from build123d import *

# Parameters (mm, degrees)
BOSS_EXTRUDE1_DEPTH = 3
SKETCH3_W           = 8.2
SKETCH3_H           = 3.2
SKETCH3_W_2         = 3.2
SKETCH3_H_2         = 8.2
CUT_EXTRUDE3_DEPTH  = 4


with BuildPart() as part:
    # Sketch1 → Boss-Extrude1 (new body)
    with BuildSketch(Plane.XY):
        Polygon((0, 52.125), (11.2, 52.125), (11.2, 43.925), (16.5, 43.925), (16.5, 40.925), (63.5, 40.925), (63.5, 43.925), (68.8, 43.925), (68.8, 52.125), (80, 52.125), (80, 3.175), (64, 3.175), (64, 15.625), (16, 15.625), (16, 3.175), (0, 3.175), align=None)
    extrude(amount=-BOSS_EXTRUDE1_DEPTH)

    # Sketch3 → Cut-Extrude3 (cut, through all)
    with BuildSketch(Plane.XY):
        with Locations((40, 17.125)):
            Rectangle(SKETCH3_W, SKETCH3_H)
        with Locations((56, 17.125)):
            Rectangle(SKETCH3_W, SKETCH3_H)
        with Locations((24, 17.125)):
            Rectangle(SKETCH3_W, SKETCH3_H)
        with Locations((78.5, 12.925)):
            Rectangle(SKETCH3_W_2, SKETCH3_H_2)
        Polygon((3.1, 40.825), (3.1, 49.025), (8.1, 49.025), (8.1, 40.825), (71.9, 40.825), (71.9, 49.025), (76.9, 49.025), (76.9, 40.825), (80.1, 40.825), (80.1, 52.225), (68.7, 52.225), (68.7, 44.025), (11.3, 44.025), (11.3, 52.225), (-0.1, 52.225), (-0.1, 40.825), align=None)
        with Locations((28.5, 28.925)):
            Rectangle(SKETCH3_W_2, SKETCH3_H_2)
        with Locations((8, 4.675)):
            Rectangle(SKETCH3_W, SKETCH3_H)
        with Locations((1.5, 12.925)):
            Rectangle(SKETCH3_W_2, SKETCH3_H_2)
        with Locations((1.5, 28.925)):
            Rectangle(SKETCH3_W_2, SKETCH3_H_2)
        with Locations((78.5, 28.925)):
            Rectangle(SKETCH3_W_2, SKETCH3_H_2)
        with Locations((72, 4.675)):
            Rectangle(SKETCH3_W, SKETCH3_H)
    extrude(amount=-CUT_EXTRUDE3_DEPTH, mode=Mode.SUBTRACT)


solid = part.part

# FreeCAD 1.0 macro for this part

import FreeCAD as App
import Part
import Sketcher

V = App.Vector
Q = App.Units.Quantity

doc = App.newDocument("Part")
params = doc.addObject("Spreadsheet::Sheet", "Params")
for row, (alias, value) in enumerate([
    ("sketch1_width", "16 mm"),
    ("sketch1_width2", "48 mm"),
    ("sketch1_width3", "47 mm"),
    ("sketch1_height", "3 mm"),
    ("sketch1_width4", "11.2 mm"),
    ("pad1_length", "3 mm"),
    ("sketch2_width", "5 mm"),
    ("sketch2_width2", "8.2 mm"),
    ("sketch2_width3", "3.2 mm"),
    ("sketch2_width4", "63.8 mm"),
    ("sketch2_width5", "11.4 mm"),
], start=1):
    params.set(f"A{row}", alias)
    params.set(f"B{row}", "=" + value)
    params.setAlias(f"B{row}", alias)

body = doc.addObject("PartDesign::Body", "Body")

# Sketch on XY plane
sketch1 = body.newObject("Sketcher::SketchObject", "Sketch")
sketch1.AttachmentSupport = (doc.getObject("XY_Plane"), [""])
sketch1.MapMode = "FlatFace"
sketch1.addGeometry(Part.LineSegment(V(11.2, 52.1, 0), V(0, 52.1, 0)), False)
sketch1.addGeometry(Part.LineSegment(V(0, 52.1, 0), V(0, 3.2, 0)), False)
sketch1.addGeometry(Part.LineSegment(V(0, 3.2, 0), V(16, 3.2, 0)), False)
sketch1.addGeometry(Part.LineSegment(V(16, 3.2, 0), V(16, 15.6, 0)), False)
sketch1.addGeometry(Part.LineSegment(V(16, 15.6, 0), V(64, 15.6, 0)), False)
sketch1.addGeometry(Part.LineSegment(V(64, 15.6, 0), V(64, 3.2, 0)), False)
sketch1.addGeometry(Part.LineSegment(V(64, 3.2, 0), V(80, 3.2, 0)), False)
sketch1.addGeometry(Part.LineSegment(V(80, 3.2, 0), V(80, 52.1, 0)), False)
sketch1.addGeometry(Part.LineSegment(V(80, 52.1, 0), V(68.8, 52.1, 0)), False)
sketch1.addGeometry(Part.LineSegment(V(68.8, 52.1, 0), V(68.8, 43.9, 0)), False)
sketch1.addGeometry(Part.LineSegment(V(68.8, 43.9, 0), V(63.5, 43.9, 0)), False)
sketch1.addGeometry(Part.LineSegment(V(63.5, 43.9, 0), V(63.5, 40.9, 0)), False)
sketch1.addGeometry(Part.LineSegment(V(63.5, 40.9, 0), V(16.5, 40.9, 0)), False)
sketch1.addGeometry(Part.LineSegment(V(16.5, 40.9, 0), V(16.5, 43.9, 0)), False)
sketch1.addGeometry(Part.LineSegment(V(16.5, 43.9, 0), V(11.2, 43.9, 0)), False)
sketch1.addGeometry(Part.LineSegment(V(11.2, 43.9, 0), V(11.2, 52.1, 0)), False)
sketch1.addConstraint(Sketcher.Constraint("Coincident", 0, 2, 1, 1))
sketch1.addConstraint(Sketcher.Constraint("Coincident", 1, 2, 2, 1))
sketch1.addConstraint(Sketcher.Constraint("Coincident", 2, 2, 3, 1))
sketch1.addConstraint(Sketcher.Constraint("Coincident", 3, 2, 4, 1))
sketch1.addConstraint(Sketcher.Constraint("Coincident", 4, 2, 5, 1))
sketch1.addConstraint(Sketcher.Constraint("Coincident", 5, 2, 6, 1))
sketch1.addConstraint(Sketcher.Constraint("Coincident", 6, 2, 7, 1))
sketch1.addConstraint(Sketcher.Constraint("Coincident", 7, 2, 8, 1))
sketch1.addConstraint(Sketcher.Constraint("Coincident", 8, 2, 9, 1))
sketch1.addConstraint(Sketcher.Constraint("Coincident", 9, 2, 10, 1))
sketch1.addConstraint(Sketcher.Constraint("Coincident", 10, 2, 11, 1))
sketch1.addConstraint(Sketcher.Constraint("Coincident", 11, 2, 12, 1))
sketch1.addConstraint(Sketcher.Constraint("Coincident", 12, 2, 13, 1))
sketch1.addConstraint(Sketcher.Constraint("Coincident", 13, 2, 14, 1))
sketch1.addConstraint(Sketcher.Constraint("Coincident", 14, 2, 15, 1))
sketch1.addConstraint(Sketcher.Constraint("Coincident", 15, 2, 0, 1))
sketch1.addConstraint(Sketcher.Constraint("Horizontal", 0))
sketch1.addConstraint(Sketcher.Constraint("Vertical", 1))
sketch1.addConstraint(Sketcher.Constraint("Horizontal", 2))
sketch1.addConstraint(Sketcher.Constraint("Vertical", 3))
sketch1.addConstraint(Sketcher.Constraint("Horizontal", 4))
sketch1.addConstraint(Sketcher.Constraint("Vertical", 5))
sketch1.addConstraint(Sketcher.Constraint("Horizontal", 6))
sketch1.addConstraint(Sketcher.Constraint("Vertical", 7))
sketch1.addConstraint(Sketcher.Constraint("Horizontal", 8))
sketch1.addConstraint(Sketcher.Constraint("Vertical", 9))
sketch1.addConstraint(Sketcher.Constraint("Horizontal", 10))
sketch1.addConstraint(Sketcher.Constraint("Vertical", 11))
sketch1.addConstraint(Sketcher.Constraint("Horizontal", 12))
sketch1.addConstraint(Sketcher.Constraint("Vertical", 13))
sketch1.addConstraint(Sketcher.Constraint("Horizontal", 14))
sketch1.addConstraint(Sketcher.Constraint("Vertical", 15))
sketch1.addConstraint(Sketcher.Constraint("PointOnObject", 0, 2, -2))
sketch1.addConstraint(Sketcher.Constraint("Horizontal", 2, 2, 5, 2))
sketch1.addConstraint(Sketcher.Constraint("Horizontal", 0, 2, 7, 2))
sketch1.addConstraint(Sketcher.Constraint("Horizontal", 10, 2, 13, 2))
sketch1.addConstraint(Sketcher.Constraint("Equal", 2, 6))
sketch1.addConstraint(Sketcher.Constraint("Equal", 0, 8))
sketch1.addConstraint(Sketcher.Constraint("Equal", 10, 14))
sketch1.addConstraint(Sketcher.Constraint("DistanceX", 2, 1, 2, 2, Q("16 mm")))
sketch1.addConstraint(Sketcher.Constraint("DistanceX", 4, 1, 4, 2, Q("48 mm")))
sketch1.addConstraint(Sketcher.Constraint("DistanceX", 12, 2, 12, 1, Q("47 mm")))
sketch1.addConstraint(Sketcher.Constraint("DistanceY", 11, 2, 11, 1, Q("3 mm")))
sketch1.addConstraint(Sketcher.Constraint("DistanceX", 0, 2, 0, 1, Q("11.2 mm")))
sketch1.addConstraint(Sketcher.Constraint("DistanceY", 9, 2, 9, 1, Q("8.2 mm")))
sketch1.addConstraint(Sketcher.Constraint("DistanceY", 1, 2, 1, 1, Q("48.95 mm")))
sketch1.addConstraint(Sketcher.Constraint("DistanceY", 3, 1, 3, 2, Q("12.45 mm")))
sketch1.addConstraint(Sketcher.Constraint("DistanceY", -1, 1, 0, 2, Q("52.125 mm")))
sketch1.setExpression("Constraints[39]", "Params.sketch1_width")
sketch1.setExpression("Constraints[40]", "Params.sketch1_width2")
sketch1.setExpression("Constraints[41]", "Params.sketch1_width3")
sketch1.setExpression("Constraints[42]", "Params.sketch1_height")
sketch1.setExpression("Constraints[43]", "Params.sketch1_width4")
pad1 = body.newObject("PartDesign::Pad", "Pad")
pad1.Profile = sketch1
pad1.setExpression("Length", "Params.pad1_length")
pad1.Reversed = True

# Sketch on XY plane
sketch2 = body.newObject("Sketcher::SketchObject", "Sketch001")
sketch2.AttachmentSupport = (doc.getObject("XY_Plane"), [""])
sketch2.MapMode = "FlatFace"
sketch2.addGeometry(Part.LineSegment(V(35.9, 18.7, 0), V(35.9, 15.5, 0)), False)
sketch2.addGeometry(Part.LineSegment(V(35.9, 15.5, 0), V(44.1, 15.5, 0)), False)
sketch2.addGeometry(Part.LineSegment(V(44.1, 15.5, 0), V(44.1, 18.7, 0)), False)
sketch2.addGeometry(Part.LineSegment(V(44.1, 18.7, 0), V(35.9, 18.7, 0)), False)
sketch2.addGeometry(Part.LineSegment(V(51.9, 18.7, 0), V(51.9, 15.5, 0)), False)
sketch2.addGeometry(Part.LineSegment(V(51.9, 15.5, 0), V(60.1, 15.5, 0)), False)
sketch2.addGeometry(Part.LineSegment(V(60.1, 15.5, 0), V(60.1, 18.7, 0)), False)
sketch2.addGeometry(Part.LineSegment(V(60.1, 18.7, 0), V(51.9, 18.7, 0)), False)
sketch2.addGeometry(Part.LineSegment(V(19.9, 18.7, 0), V(19.9, 15.5, 0)), False)
sketch2.addGeometry(Part.LineSegment(V(19.9, 15.5, 0), V(28.1, 15.5, 0)), False)
sketch2.addGeometry(Part.LineSegment(V(28.1, 15.5, 0), V(28.1, 18.7, 0)), False)
sketch2.addGeometry(Part.LineSegment(V(28.1, 18.7, 0), V(19.9, 18.7, 0)), False)
sketch2.addGeometry(Part.LineSegment(V(76.9, 17, 0), V(76.9, 8.8, 0)), False)
sketch2.addGeometry(Part.LineSegment(V(76.9, 8.8, 0), V(80.1, 8.8, 0)), False)
sketch2.addGeometry(Part.LineSegment(V(80.1, 8.8, 0), V(80.1, 17, 0)), False)
sketch2.addGeometry(Part.LineSegment(V(80.1, 17, 0), V(76.9, 17, 0)), False)
sketch2.addGeometry(Part.LineSegment(V(3.1, 40.8, 0), V(3.1, 49, 0)), False)
sketch2.addGeometry(Part.LineSegment(V(3.1, 49, 0), V(8.1, 49, 0)), False)
sketch2.addGeometry(Part.LineSegment(V(8.1, 49, 0), V(8.1, 40.8, 0)), False)
sketch2.addGeometry(Part.LineSegment(V(8.1, 40.8, 0), V(71.9, 40.8, 0)), False)
sketch2.addGeometry(Part.LineSegment(V(71.9, 40.8, 0), V(71.9, 49, 0)), False)
sketch2.addGeometry(Part.LineSegment(V(71.9, 49, 0), V(76.9, 49, 0)), False)
sketch2.addGeometry(Part.LineSegment(V(76.9, 49, 0), V(76.9, 40.8, 0)), False)
sketch2.addGeometry(Part.LineSegment(V(76.9, 40.8, 0), V(80.1, 40.8, 0)), False)
sketch2.addGeometry(Part.LineSegment(V(80.1, 40.8, 0), V(80.1, 52.2, 0)), False)
sketch2.addGeometry(Part.LineSegment(V(80.1, 52.2, 0), V(68.7, 52.2, 0)), False)
sketch2.addGeometry(Part.LineSegment(V(68.7, 52.2, 0), V(68.7, 44, 0)), False)
sketch2.addGeometry(Part.LineSegment(V(68.7, 44, 0), V(11.3, 44, 0)), False)
sketch2.addGeometry(Part.LineSegment(V(11.3, 44, 0), V(11.3, 52.2, 0)), False)
sketch2.addGeometry(Part.LineSegment(V(11.3, 52.2, 0), V(-0.1, 52.2, 0)), False)
sketch2.addGeometry(Part.LineSegment(V(-0.1, 52.2, 0), V(-0.1, 40.8, 0)), False)
sketch2.addGeometry(Part.LineSegment(V(-0.1, 40.8, 0), V(3.1, 40.8, 0)), False)
sketch2.addGeometry(Part.LineSegment(V(26.9, 33, 0), V(26.9, 24.8, 0)), False)
sketch2.addGeometry(Part.LineSegment(V(26.9, 24.8, 0), V(30.1, 24.8, 0)), False)
sketch2.addGeometry(Part.LineSegment(V(30.1, 24.8, 0), V(30.1, 33, 0)), False)
sketch2.addGeometry(Part.LineSegment(V(30.1, 33, 0), V(26.9, 33, 0)), False)
sketch2.addGeometry(Part.LineSegment(V(3.9, 6.3, 0), V(3.9, 3.1, 0)), False)
sketch2.addGeometry(Part.LineSegment(V(3.9, 3.1, 0), V(12.1, 3.1, 0)), False)
sketch2.addGeometry(Part.LineSegment(V(12.1, 3.1, 0), V(12.1, 6.3, 0)), False)
sketch2.addGeometry(Part.LineSegment(V(12.1, 6.3, 0), V(3.9, 6.3, 0)), False)
sketch2.addGeometry(Part.LineSegment(V(-0.1, 17, 0), V(-0.1, 8.8, 0)), False)
sketch2.addGeometry(Part.LineSegment(V(-0.1, 8.8, 0), V(3.1, 8.8, 0)), False)
sketch2.addGeometry(Part.LineSegment(V(3.1, 8.8, 0), V(3.1, 17, 0)), False)
sketch2.addGeometry(Part.LineSegment(V(3.1, 17, 0), V(-0.1, 17, 0)), False)
sketch2.addGeometry(Part.LineSegment(V(-0.1, 33, 0), V(-0.1, 24.8, 0)), False)
sketch2.addGeometry(Part.LineSegment(V(-0.1, 24.8, 0), V(3.1, 24.8, 0)), False)
sketch2.addGeometry(Part.LineSegment(V(3.1, 24.8, 0), V(3.1, 33, 0)), False)
sketch2.addGeometry(Part.LineSegment(V(3.1, 33, 0), V(-0.1, 33, 0)), False)
sketch2.addGeometry(Part.LineSegment(V(76.9, 33, 0), V(76.9, 24.8, 0)), False)
sketch2.addGeometry(Part.LineSegment(V(76.9, 24.8, 0), V(80.1, 24.8, 0)), False)
sketch2.addGeometry(Part.LineSegment(V(80.1, 24.8, 0), V(80.1, 33, 0)), False)
sketch2.addGeometry(Part.LineSegment(V(80.1, 33, 0), V(76.9, 33, 0)), False)
sketch2.addGeometry(Part.LineSegment(V(67.9, 6.3, 0), V(67.9, 3.1, 0)), False)
sketch2.addGeometry(Part.LineSegment(V(67.9, 3.1, 0), V(76.1, 3.1, 0)), False)
sketch2.addGeometry(Part.LineSegment(V(76.1, 3.1, 0), V(76.1, 6.3, 0)), False)
sketch2.addGeometry(Part.LineSegment(V(76.1, 6.3, 0), V(67.9, 6.3, 0)), False)
sketch2.addConstraint(Sketcher.Constraint("Coincident", 0, 2, 1, 1))
sketch2.addConstraint(Sketcher.Constraint("Coincident", 1, 2, 2, 1))
sketch2.addConstraint(Sketcher.Constraint("Coincident", 2, 2, 3, 1))
sketch2.addConstraint(Sketcher.Constraint("Coincident", 3, 2, 0, 1))
sketch2.addConstraint(Sketcher.Constraint("Coincident", 4, 2, 5, 1))
sketch2.addConstraint(Sketcher.Constraint("Coincident", 5, 2, 6, 1))
sketch2.addConstraint(Sketcher.Constraint("Coincident", 6, 2, 7, 1))
sketch2.addConstraint(Sketcher.Constraint("Coincident", 7, 2, 4, 1))
sketch2.addConstraint(Sketcher.Constraint("Coincident", 8, 2, 9, 1))
sketch2.addConstraint(Sketcher.Constraint("Coincident", 9, 2, 10, 1))
sketch2.addConstraint(Sketcher.Constraint("Coincident", 10, 2, 11, 1))
sketch2.addConstraint(Sketcher.Constraint("Coincident", 11, 2, 8, 1))
sketch2.addConstraint(Sketcher.Constraint("Coincident", 12, 2, 13, 1))
sketch2.addConstraint(Sketcher.Constraint("Coincident", 13, 2, 14, 1))
sketch2.addConstraint(Sketcher.Constraint("Coincident", 14, 2, 15, 1))
sketch2.addConstraint(Sketcher.Constraint("Coincident", 15, 2, 12, 1))
sketch2.addConstraint(Sketcher.Constraint("Coincident", 16, 2, 17, 1))
sketch2.addConstraint(Sketcher.Constraint("Coincident", 17, 2, 18, 1))
sketch2.addConstraint(Sketcher.Constraint("Coincident", 18, 2, 19, 1))
sketch2.addConstraint(Sketcher.Constraint("Coincident", 19, 2, 20, 1))
sketch2.addConstraint(Sketcher.Constraint("Coincident", 20, 2, 21, 1))
sketch2.addConstraint(Sketcher.Constraint("Coincident", 21, 2, 22, 1))
sketch2.addConstraint(Sketcher.Constraint("Coincident", 22, 2, 23, 1))
sketch2.addConstraint(Sketcher.Constraint("Coincident", 23, 2, 24, 1))
sketch2.addConstraint(Sketcher.Constraint("Coincident", 24, 2, 25, 1))
sketch2.addConstraint(Sketcher.Constraint("Coincident", 25, 2, 26, 1))
sketch2.addConstraint(Sketcher.Constraint("Coincident", 26, 2, 27, 1))
sketch2.addConstraint(Sketcher.Constraint("Coincident", 27, 2, 28, 1))
sketch2.addConstraint(Sketcher.Constraint("Coincident", 28, 2, 29, 1))
sketch2.addConstraint(Sketcher.Constraint("Coincident", 29, 2, 30, 1))
sketch2.addConstraint(Sketcher.Constraint("Coincident", 30, 2, 31, 1))
sketch2.addConstraint(Sketcher.Constraint("Coincident", 31, 2, 16, 1))
sketch2.addConstraint(Sketcher.Constraint("Coincident", 32, 2, 33, 1))
sketch2.addConstraint(Sketcher.Constraint("Coincident", 33, 2, 34, 1))
sketch2.addConstraint(Sketcher.Constraint("Coincident", 34, 2, 35, 1))
sketch2.addConstraint(Sketcher.Constraint("Coincident", 35, 2, 32, 1))
sketch2.addConstraint(Sketcher.Constraint("Coincident", 36, 2, 37, 1))
sketch2.addConstraint(Sketcher.Constraint("Coincident", 37, 2, 38, 1))
sketch2.addConstraint(Sketcher.Constraint("Coincident", 38, 2, 39, 1))
sketch2.addConstraint(Sketcher.Constraint("Coincident", 39, 2, 36, 1))
sketch2.addConstraint(Sketcher.Constraint("Coincident", 40, 2, 41, 1))
sketch2.addConstraint(Sketcher.Constraint("Coincident", 41, 2, 42, 1))
sketch2.addConstraint(Sketcher.Constraint("Coincident", 42, 2, 43, 1))
sketch2.addConstraint(Sketcher.Constraint("Coincident", 43, 2, 40, 1))
sketch2.addConstraint(Sketcher.Constraint("Coincident", 44, 2, 45, 1))
sketch2.addConstraint(Sketcher.Constraint("Coincident", 45, 2, 46, 1))
sketch2.addConstraint(Sketcher.Constraint("Coincident", 46, 2, 47, 1))
sketch2.addConstraint(Sketcher.Constraint("Coincident", 47, 2, 44, 1))
sketch2.addConstraint(Sketcher.Constraint("Coincident", 48, 2, 49, 1))
sketch2.addConstraint(Sketcher.Constraint("Coincident", 49, 2, 50, 1))
sketch2.addConstraint(Sketcher.Constraint("Coincident", 50, 2, 51, 1))
sketch2.addConstraint(Sketcher.Constraint("Coincident", 51, 2, 48, 1))
sketch2.addConstraint(Sketcher.Constraint("Coincident", 52, 2, 53, 1))
sketch2.addConstraint(Sketcher.Constraint("Coincident", 53, 2, 54, 1))
sketch2.addConstraint(Sketcher.Constraint("Coincident", 54, 2, 55, 1))
sketch2.addConstraint(Sketcher.Constraint("Coincident", 55, 2, 52, 1))
sketch2.addConstraint(Sketcher.Constraint("Vertical", 0))
sketch2.addConstraint(Sketcher.Constraint("Horizontal", 1))
sketch2.addConstraint(Sketcher.Constraint("Vertical", 2))
sketch2.addConstraint(Sketcher.Constraint("Horizontal", 3))
sketch2.addConstraint(Sketcher.Constraint("Vertical", 4))
sketch2.addConstraint(Sketcher.Constraint("Horizontal", 5))
sketch2.addConstraint(Sketcher.Constraint("Vertical", 6))
sketch2.addConstraint(Sketcher.Constraint("Horizontal", 7))
sketch2.addConstraint(Sketcher.Constraint("Vertical", 8))
sketch2.addConstraint(Sketcher.Constraint("Horizontal", 9))
sketch2.addConstraint(Sketcher.Constraint("Vertical", 10))
sketch2.addConstraint(Sketcher.Constraint("Horizontal", 11))
sketch2.addConstraint(Sketcher.Constraint("Vertical", 12))
sketch2.addConstraint(Sketcher.Constraint("Horizontal", 13))
sketch2.addConstraint(Sketcher.Constraint("Vertical", 14))
sketch2.addConstraint(Sketcher.Constraint("Horizontal", 15))
sketch2.addConstraint(Sketcher.Constraint("Vertical", 16))
sketch2.addConstraint(Sketcher.Constraint("Horizontal", 17))
sketch2.addConstraint(Sketcher.Constraint("Vertical", 18))
sketch2.addConstraint(Sketcher.Constraint("Horizontal", 19))
sketch2.addConstraint(Sketcher.Constraint("Vertical", 20))
sketch2.addConstraint(Sketcher.Constraint("Horizontal", 21))
sketch2.addConstraint(Sketcher.Constraint("Vertical", 22))
sketch2.addConstraint(Sketcher.Constraint("Horizontal", 23))
sketch2.addConstraint(Sketcher.Constraint("Vertical", 24))
sketch2.addConstraint(Sketcher.Constraint("Horizontal", 25))
sketch2.addConstraint(Sketcher.Constraint("Vertical", 26))
sketch2.addConstraint(Sketcher.Constraint("Horizontal", 27))
sketch2.addConstraint(Sketcher.Constraint("Vertical", 28))
sketch2.addConstraint(Sketcher.Constraint("Horizontal", 29))
sketch2.addConstraint(Sketcher.Constraint("Vertical", 30))
sketch2.addConstraint(Sketcher.Constraint("Horizontal", 31))
sketch2.addConstraint(Sketcher.Constraint("Vertical", 32))
sketch2.addConstraint(Sketcher.Constraint("Horizontal", 33))
sketch2.addConstraint(Sketcher.Constraint("Vertical", 34))
sketch2.addConstraint(Sketcher.Constraint("Horizontal", 35))
sketch2.addConstraint(Sketcher.Constraint("Vertical", 36))
sketch2.addConstraint(Sketcher.Constraint("Horizontal", 37))
sketch2.addConstraint(Sketcher.Constraint("Vertical", 38))
sketch2.addConstraint(Sketcher.Constraint("Horizontal", 39))
sketch2.addConstraint(Sketcher.Constraint("Vertical", 40))
sketch2.addConstraint(Sketcher.Constraint("Horizontal", 41))
sketch2.addConstraint(Sketcher.Constraint("Vertical", 42))
sketch2.addConstraint(Sketcher.Constraint("Horizontal", 43))
sketch2.addConstraint(Sketcher.Constraint("Vertical", 44))
sketch2.addConstraint(Sketcher.Constraint("Horizontal", 45))
sketch2.addConstraint(Sketcher.Constraint("Vertical", 46))
sketch2.addConstraint(Sketcher.Constraint("Horizontal", 47))
sketch2.addConstraint(Sketcher.Constraint("Vertical", 48))
sketch2.addConstraint(Sketcher.Constraint("Horizontal", 49))
sketch2.addConstraint(Sketcher.Constraint("Vertical", 50))
sketch2.addConstraint(Sketcher.Constraint("Horizontal", 51))
sketch2.addConstraint(Sketcher.Constraint("Vertical", 52))
sketch2.addConstraint(Sketcher.Constraint("Horizontal", 53))
sketch2.addConstraint(Sketcher.Constraint("Vertical", 54))
sketch2.addConstraint(Sketcher.Constraint("Horizontal", 55))
sketch2.addConstraint(Sketcher.Constraint("Horizontal", 1, 2, 4, 2))
sketch2.addConstraint(Sketcher.Constraint("Horizontal", 3, 2, 6, 2))
sketch2.addConstraint(Sketcher.Constraint("Horizontal", 5, 2, 8, 2))
sketch2.addConstraint(Sketcher.Constraint("Horizontal", 7, 2, 10, 2))
sketch2.addConstraint(Sketcher.Constraint("Horizontal", 17, 2, 20, 2))
sketch2.addConstraint(Sketcher.Constraint("Horizontal", 19, 2, 22, 2))
sketch2.addConstraint(Sketcher.Constraint("Horizontal", 25, 2, 28, 2))
sketch2.addConstraint(Sketcher.Constraint("Horizontal", 23, 2, 30, 2))
sketch2.addConstraint(Sketcher.Constraint("Horizontal", 13, 2, 40, 2))
sketch2.addConstraint(Sketcher.Constraint("Horizontal", 15, 2, 42, 2))
sketch2.addConstraint(Sketcher.Constraint("Horizontal", 33, 2, 44, 2))
sketch2.addConstraint(Sketcher.Constraint("Horizontal", 35, 2, 46, 2))
sketch2.addConstraint(Sketcher.Constraint("Horizontal", 45, 2, 48, 2))
sketch2.addConstraint(Sketcher.Constraint("Horizontal", 47, 2, 50, 2))
sketch2.addConstraint(Sketcher.Constraint("Horizontal", 37, 2, 52, 2))
sketch2.addConstraint(Sketcher.Constraint("Horizontal", 39, 2, 54, 2))
sketch2.addConstraint(Sketcher.Constraint("Vertical", 15, 2, 21, 2))
sketch2.addConstraint(Sketcher.Constraint("Vertical", 14, 2, 23, 2))
sketch2.addConstraint(Sketcher.Constraint("Vertical", 30, 2, 40, 2))
sketch2.addConstraint(Sketcher.Constraint("Vertical", 31, 2, 41, 2))
sketch2.addConstraint(Sketcher.Constraint("Vertical", 43, 2, 44, 2))
sketch2.addConstraint(Sketcher.Constraint("Vertical", 42, 2, 45, 2))
sketch2.addConstraint(Sketcher.Constraint("Vertical", 22, 2, 48, 2))
sketch2.addConstraint(Sketcher.Constraint("Vertical", 24, 2, 49, 2))
sketch2.addConstraint(Sketcher.Constraint("Equal", 3, 5))
sketch2.addConstraint(Sketcher.Constraint("Equal", 7, 9))
sketch2.addConstraint(Sketcher.Constraint("Equal", 17, 21))
sketch2.addConstraint(Sketcher.Constraint("Equal", 25, 29))
sketch2.addConstraint(Sketcher.Constraint("Equal", 23, 31))
sketch2.addConstraint(Sketcher.Constraint("Equal", 31, 33))
sketch2.addConstraint(Sketcher.Constraint("Equal", 11, 37))
sketch2.addConstraint(Sketcher.Constraint("Equal", 39, 53))
sketch2.addConstraint(Sketcher.Constraint("Equal", 51, 0))
sketch2.addConstraint(Sketcher.Constraint("Equal", 55, 12))
sketch2.addConstraint(Sketcher.Constraint("Equal", 14, 16))
sketch2.addConstraint(Sketcher.Constraint("Equal", 29, 24))
sketch2.addConstraint(Sketcher.Constraint("Equal", 22, 26))
sketch2.addConstraint(Sketcher.Constraint("Equal", 28, 32))
sketch2.addConstraint(Sketcher.Constraint("Equal", 10, 36))
sketch2.addConstraint(Sketcher.Constraint("DistanceX", 17, 1, 17, 2, Q("5 mm")))
sketch2.addConstraint(Sketcher.Constraint("DistanceX", 1, 1, 1, 2, Q("8.2 mm")))
sketch2.addConstraint(Sketcher.Constraint("DistanceX", 13, 1, 13, 2, Q("3.2 mm")))
sketch2.addConstraint(Sketcher.Constraint("DistanceX", 19, 1, 19, 2, Q("63.8 mm")))
sketch2.addConstraint(Sketcher.Constraint("DistanceX", 25, 2, 25, 1, Q("11.4 mm")))
sketch2.addConstraint(Sketcher.Constraint("DistanceX", 0, 2, 4, 2, Q("16 mm")))
sketch2.addConstraint(Sketcher.Constraint("DistanceX", 8, 2, 0, 2, Q("16 mm")))
sketch2.addConstraint(Sketcher.Constraint("DistanceX", 4, 2, 12, 2, Q("25 mm")))
sketch2.addConstraint(Sketcher.Constraint("DistanceY", 15, 2, 20, 2, Q("32 mm")))
sketch2.addConstraint(Sketcher.Constraint("DistanceX", 11, 2, 32, 2, Q("7 mm")))
sketch2.addConstraint(Sketcher.Constraint("DistanceX", 36, 2, 8, 2, Q("16 mm")))
sketch2.addConstraint(Sketcher.Constraint("DistanceY", 40, 2, 44, 2, Q("16 mm")))
sketch2.addConstraint(Sketcher.Constraint("DistanceX", 52, 2, 12, 2, Q("9 mm")))
sketch2.addConstraint(Sketcher.Constraint("DistanceX", -1, 1, 0, 2, Q("35.9 mm")))
sketch2.addConstraint(Sketcher.Constraint("DistanceY", 12, 2, 5, 2, Q("6.7 mm")))
sketch2.addConstraint(Sketcher.Constraint("DistanceY", 36, 2, 8, 2, Q("12.45 mm")))
sketch2.addConstraint(Sketcher.Constraint("DistanceY", -1, 1, 0, 2, Q("15.525 mm")))
sketch2.setExpression("Constraints[151]", "Params.sketch2_width")
sketch2.setExpression("Constraints[152]", "Params.sketch2_width2")
sketch2.setExpression("Constraints[153]", "Params.sketch2_width3")
sketch2.setExpression("Constraints[154]", "Params.sketch2_width4")
sketch2.setExpression("Constraints[155]", "Params.sketch2_width5")
pocket1 = body.newObject("PartDesign::Pocket", "Pocket")
pocket1.Profile = sketch2
pocket1.Type = "ThroughAll"

doc.recompute()
